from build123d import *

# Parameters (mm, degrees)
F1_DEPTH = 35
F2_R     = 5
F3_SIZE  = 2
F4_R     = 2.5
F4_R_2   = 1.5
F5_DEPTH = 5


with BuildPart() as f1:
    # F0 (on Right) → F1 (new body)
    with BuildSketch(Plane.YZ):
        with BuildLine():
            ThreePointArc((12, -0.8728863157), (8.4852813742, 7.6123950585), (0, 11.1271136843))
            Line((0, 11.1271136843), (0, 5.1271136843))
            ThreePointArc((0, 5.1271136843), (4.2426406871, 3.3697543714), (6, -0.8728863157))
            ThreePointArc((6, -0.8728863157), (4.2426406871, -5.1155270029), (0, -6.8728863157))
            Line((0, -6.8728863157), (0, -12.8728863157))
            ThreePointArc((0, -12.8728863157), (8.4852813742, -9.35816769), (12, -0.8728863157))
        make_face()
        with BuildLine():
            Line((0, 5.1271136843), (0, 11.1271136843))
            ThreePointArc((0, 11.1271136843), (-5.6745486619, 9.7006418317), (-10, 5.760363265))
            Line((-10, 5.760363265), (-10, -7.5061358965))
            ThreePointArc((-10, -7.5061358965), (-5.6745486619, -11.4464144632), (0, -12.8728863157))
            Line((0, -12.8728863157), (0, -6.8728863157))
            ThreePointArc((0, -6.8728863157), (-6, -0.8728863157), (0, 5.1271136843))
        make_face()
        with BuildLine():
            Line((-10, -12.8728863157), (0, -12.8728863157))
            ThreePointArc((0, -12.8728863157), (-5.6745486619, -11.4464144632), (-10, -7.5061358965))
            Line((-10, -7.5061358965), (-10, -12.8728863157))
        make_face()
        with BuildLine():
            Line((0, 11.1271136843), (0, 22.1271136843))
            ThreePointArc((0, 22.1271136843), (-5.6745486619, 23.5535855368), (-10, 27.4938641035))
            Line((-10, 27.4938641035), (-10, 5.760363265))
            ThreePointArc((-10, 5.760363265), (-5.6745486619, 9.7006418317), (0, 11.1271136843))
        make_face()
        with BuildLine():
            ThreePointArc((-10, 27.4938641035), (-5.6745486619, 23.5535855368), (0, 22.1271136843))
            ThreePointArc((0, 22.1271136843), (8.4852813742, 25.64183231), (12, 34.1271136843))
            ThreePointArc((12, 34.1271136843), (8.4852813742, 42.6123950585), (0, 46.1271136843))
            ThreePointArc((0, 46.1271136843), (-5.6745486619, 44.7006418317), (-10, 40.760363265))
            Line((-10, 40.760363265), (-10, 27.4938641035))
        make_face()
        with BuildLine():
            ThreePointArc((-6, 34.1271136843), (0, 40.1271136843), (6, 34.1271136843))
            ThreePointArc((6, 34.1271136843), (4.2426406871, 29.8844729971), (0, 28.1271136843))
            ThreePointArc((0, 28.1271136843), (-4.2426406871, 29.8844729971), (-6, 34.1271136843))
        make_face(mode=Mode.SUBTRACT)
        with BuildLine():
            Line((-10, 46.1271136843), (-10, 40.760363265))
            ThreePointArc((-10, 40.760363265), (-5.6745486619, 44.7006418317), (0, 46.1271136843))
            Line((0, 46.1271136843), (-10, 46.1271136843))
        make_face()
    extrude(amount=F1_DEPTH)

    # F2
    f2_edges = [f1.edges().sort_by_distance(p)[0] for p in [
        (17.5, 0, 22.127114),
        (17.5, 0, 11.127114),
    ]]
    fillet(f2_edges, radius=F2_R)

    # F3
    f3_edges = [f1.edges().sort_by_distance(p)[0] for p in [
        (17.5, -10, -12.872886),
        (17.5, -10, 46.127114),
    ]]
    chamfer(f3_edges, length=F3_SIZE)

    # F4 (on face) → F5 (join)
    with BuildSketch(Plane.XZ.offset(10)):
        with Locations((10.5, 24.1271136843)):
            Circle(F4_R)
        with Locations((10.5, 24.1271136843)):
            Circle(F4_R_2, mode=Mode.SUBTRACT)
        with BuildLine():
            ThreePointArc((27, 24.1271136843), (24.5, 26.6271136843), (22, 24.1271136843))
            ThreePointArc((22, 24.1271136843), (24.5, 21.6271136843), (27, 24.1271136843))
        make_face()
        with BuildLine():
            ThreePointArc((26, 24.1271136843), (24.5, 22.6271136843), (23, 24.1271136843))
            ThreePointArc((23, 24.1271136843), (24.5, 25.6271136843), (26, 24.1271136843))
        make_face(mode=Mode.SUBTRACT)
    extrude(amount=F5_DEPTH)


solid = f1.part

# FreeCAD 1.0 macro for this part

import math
import FreeCAD as App
import Part
import Sketcher


def edges_at(feature, points):
    """Names of the edges that pass closest to the given points."""
    edges = feature.Shape.Edges
    near = lambda p: min(range(len(edges)), key=lambda i: edges[i].distToShape(Part.Vertex(*p))[0])
    return sorted({f"Edge{near(p) + 1}" for p in points})

doc = App.newDocument("Part")
body = doc.addObject("PartDesign::Body", "Body")

# Sketch on YZ plane
sketch1 = body.newObject("Sketcher::SketchObject", "Sketch")
sketch1.AttachmentSupport = (doc.getObject("YZ_Plane"), [""])
sketch1.MapMode = "FlatFace"
sketch1.addGeometry([
    Part.ArcOfCircle(Part.Circle(App.Vector(0, -0.872886, 0), App.Vector(0, 0, 1), 12), math.radians(0), math.radians(90)),  # 0
    Part.LineSegment(App.Vector(0, 11.127114, 0), App.Vector(0, 22.127114, 0)),  # 1
    Part.ArcOfCircle(Part.Circle(App.Vector(0, 34.127114, 0), App.Vector(0, 0, 1), 12), math.radians(-90), math.radians(0)),  # 2
    Part.ArcOfCircle(Part.Circle(App.Vector(0, 34.127114, 0), App.Vector(0, 0, 1), 12), math.radians(0), math.radians(90)),  # 3
    Part.LineSegment(App.Vector(0, 46.127114, 0), App.Vector(-10, 46.127114, 0)),  # 4
    Part.LineSegment(App.Vector(-10, 46.127114, 0), App.Vector(-10, -12.872886, 0)),  # 5
    Part.LineSegment(App.Vector(-10, -12.872886, 0), App.Vector(0, -12.872886, 0)),  # 6
    Part.ArcOfCircle(Part.Circle(App.Vector(0, -0.872886, 0), App.Vector(0, 0, 1), 12), math.radians(-90), math.radians(0)),  # 7
    Part.ArcOfCircle(Part.Circle(App.Vector(0, -0.872886, 0), App.Vector(0, 0, 1), 6), math.radians(0), math.radians(90)),  # 8
    Part.ArcOfCircle(Part.Circle(App.Vector(0, -0.872886, 0), App.Vector(0, 0, 1), 6), math.radians(-90), math.radians(0)),  # 9
    Part.ArcOfCircle(Part.Circle(App.Vector(0, -0.872886, 0), App.Vector(0, 0, 1), 6), math.radians(90), math.radians(270)),  # 10
    Part.ArcOfCircle(Part.Circle(App.Vector(0, 34.127114, 0), App.Vector(0, 0, 1), 6), math.radians(180), math.radians(270)),  # 11
    Part.ArcOfCircle(Part.Circle(App.Vector(0, 34.127114, 0), App.Vector(0, 0, 1), 6), math.radians(0), math.radians(180)),  # 12
    Part.ArcOfCircle(Part.Circle(App.Vector(0, 34.127114, 0), App.Vector(0, 0, 1), 6), math.radians(-90), math.radians(0)),  # 13
], False)
sketch1.addConstraint([
    Sketcher.Constraint("Coincident", 0, 2, 1, 1),
    Sketcher.Constraint("Coincident", 1, 2, 2, 1),
    Sketcher.Constraint("Tangent", 2, 2, 3, 1),
    Sketcher.Constraint("Tangent", 3, 2, 4, 1),
    Sketcher.Constraint("Coincident", 4, 2, 5, 1),
    Sketcher.Constraint("Coincident", 5, 2, 6, 1),
    Sketcher.Constraint("Tangent", 6, 2, 7, 1),
    Sketcher.Constraint("Tangent", 7, 2, 0, 1),
    Sketcher.Constraint("Tangent", 8, 1, 9, 2),
    Sketcher.Constraint("Tangent", 9, 1, 10, 2),
    Sketcher.Constraint("Tangent", 10, 1, 8, 2),
    Sketcher.Constraint("Tangent", 11, 1, 12, 2),
    Sketcher.Constraint("Tangent", 12, 1, 13, 2),
    Sketcher.Constraint("Tangent", 13, 1, 11, 2),
    Sketcher.Constraint("Vertical", 1),
    Sketcher.Constraint("Horizontal", 4),
    Sketcher.Constraint("Vertical", 5),
    Sketcher.Constraint("Horizontal", 6),
    Sketcher.Constraint("Coincident", 8, 3, 0, 3),
    Sketcher.Constraint("Coincident", 11, 3, 2, 3),
    Sketcher.Constraint("Equal", 0, 2),
    Sketcher.Constraint("Equal", 2, 3),
    Sketcher.Constraint("Equal", 3, 7),
    Sketcher.Constraint("Equal", 10, 11),
    Sketcher.Constraint("Symmetric", 11, 1, 12, 1, -2),
    Sketcher.Constraint("PointOnObject", 0, 3, -2),
    Sketcher.Constraint("PointOnObject", 0, 2, -2),
    Sketcher.Constraint("PointOnObject", 9, 1, -2),
    Sketcher.Constraint("PointOnObject", 10, 1, -2),
    Sketcher.Constraint("PointOnObject", 13, 1, -2),
    Sketcher.Constraint("Horizontal", 13, 3, 2, 2),
    Sketcher.Constraint("Horizontal", 10, 3, 7, 2),
    Sketcher.Constraint("Horizontal", 7, 2, 8, 1),
    Sketcher.Constraint("Horizontal", 2, 2, 11, 1),
    Sketcher.Constraint("Radius", 0, 12.0),
    Sketcher.Constraint("Radius", 8, 6.0),
    Sketcher.Constraint("DistanceX", 4, 2, 4, 1, 10.0),
    Sketcher.Constraint("DistanceY", 1, 1, 1, 2, 11.0),
    Sketcher.Constraint("DistanceY", 0, 3, -1, 1, 0.872886),
])
pad1 = body.newObject("PartDesign::Pad", "Pad")
pad1.Profile = sketch1
pad1.Length = 35
doc.recompute()

fillet = body.newObject("PartDesign::Fillet", "Fillet")
fillet.Base = (pad1, edges_at(pad1, [(17.5, 0, 22.127), (17.5, 0, 11.127)]))
fillet.Radius = 5
doc.recompute()

chamfer = body.newObject("PartDesign::Chamfer", "Chamfer")
chamfer.Base = (fillet, edges_at(fillet, [(17.5, -10, -12.873), (17.5, -10, 46.127)]))
chamfer.Size = 2

# Sketch on XZ plane
sketch2 = body.newObject("Sketcher::SketchObject", "Sketch001")
sketch2.AttachmentSupport = (doc.getObject("XZ_Plane"), [""])
sketch2.MapMode = "FlatFace"
sketch2.AttachmentOffset = App.Placement(App.Vector(0, 0, 10), App.Rotation())
sketch2.addGeometry([
    Part.Circle(App.Vector(10.5, 24.127114, 0), App.Vector(0, 0, 1), 2.5),
    Part.Circle(App.Vector(10.5, 24.127114, 0), App.Vector(0, 0, 1), 1.5),
    Part.Circle(App.Vector(24.5, 24.127114, 0), App.Vector(0, 0, 1), 2.5),
    Part.Circle(App.Vector(24.5, 24.127114, 0), App.Vector(0, 0, 1), 1.5),
], False)
sketch2.addConstraint([
    Sketcher.Constraint("Coincident", 1, 3, 0, 3),
    Sketcher.Constraint("Coincident", 3, 3, 2, 3),
    Sketcher.Constraint("Equal", 0, 2),
    Sketcher.Constraint("Equal", 1, 3),
    Sketcher.Constraint("Horizontal", 1, 3, 2, 3),
    Sketcher.Constraint("Diameter", 0, 5.0),
    Sketcher.Constraint("Diameter", 1, 3.0),
    Sketcher.Constraint("DistanceX", 0, 3, 2, 3, 14.0),
    Sketcher.Constraint("DistanceX", -1, 1, 0, 3, 10.5),
    Sketcher.Constraint("DistanceY", -1, 1, 0, 3, 24.127114),
])
pad2 = body.newObject("PartDesign::Pad", "Pad001")
pad2.Profile = sketch2
pad2.Length = 5

doc.recompute()
